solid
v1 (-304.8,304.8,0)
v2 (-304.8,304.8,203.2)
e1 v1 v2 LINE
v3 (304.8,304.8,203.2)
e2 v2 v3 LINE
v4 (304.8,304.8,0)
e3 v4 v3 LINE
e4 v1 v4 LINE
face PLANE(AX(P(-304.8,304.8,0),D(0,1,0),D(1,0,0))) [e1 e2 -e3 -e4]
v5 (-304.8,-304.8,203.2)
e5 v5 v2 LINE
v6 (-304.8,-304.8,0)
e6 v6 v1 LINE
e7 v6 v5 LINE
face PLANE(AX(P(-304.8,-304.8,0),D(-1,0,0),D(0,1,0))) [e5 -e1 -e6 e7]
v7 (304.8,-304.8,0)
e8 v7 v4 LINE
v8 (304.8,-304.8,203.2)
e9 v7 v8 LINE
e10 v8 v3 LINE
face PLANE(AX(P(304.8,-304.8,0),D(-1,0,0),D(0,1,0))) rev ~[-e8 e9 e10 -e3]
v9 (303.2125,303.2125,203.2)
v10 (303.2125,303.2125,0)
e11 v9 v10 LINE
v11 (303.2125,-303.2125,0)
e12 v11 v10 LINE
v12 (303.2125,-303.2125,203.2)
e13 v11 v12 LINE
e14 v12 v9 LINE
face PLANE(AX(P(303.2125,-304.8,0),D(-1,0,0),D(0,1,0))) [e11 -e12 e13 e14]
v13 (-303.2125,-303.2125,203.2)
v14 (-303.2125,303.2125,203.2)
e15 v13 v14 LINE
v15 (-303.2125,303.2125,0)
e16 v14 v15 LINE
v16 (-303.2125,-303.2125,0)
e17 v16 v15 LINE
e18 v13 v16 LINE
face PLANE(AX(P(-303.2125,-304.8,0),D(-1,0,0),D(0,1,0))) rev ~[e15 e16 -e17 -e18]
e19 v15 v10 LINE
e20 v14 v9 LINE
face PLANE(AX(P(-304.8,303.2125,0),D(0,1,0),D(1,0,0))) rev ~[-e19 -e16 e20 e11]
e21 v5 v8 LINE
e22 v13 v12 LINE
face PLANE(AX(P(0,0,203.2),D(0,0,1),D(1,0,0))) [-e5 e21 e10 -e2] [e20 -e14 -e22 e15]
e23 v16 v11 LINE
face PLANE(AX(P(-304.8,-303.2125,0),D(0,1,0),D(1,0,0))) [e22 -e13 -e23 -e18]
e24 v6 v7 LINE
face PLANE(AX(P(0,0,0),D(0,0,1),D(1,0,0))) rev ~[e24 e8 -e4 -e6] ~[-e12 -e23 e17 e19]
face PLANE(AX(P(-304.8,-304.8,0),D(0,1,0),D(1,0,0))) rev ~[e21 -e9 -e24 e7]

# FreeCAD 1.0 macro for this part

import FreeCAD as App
import Part
import Sketcher

V = App.Vector
Q = App.Units.Quantity


def faces_at(feature, points):
    """Names of the faces that lie closest to the given points."""
    faces = feature.Shape.Faces
    near = lambda p: min(range(len(faces)), key=lambda i: faces[i].distToShape(Part.Vertex(*p))[0])
    return sorted({f"Face{near(p) + 1}" for p in points})

doc = App.newDocument("Part")
params = doc.addObject("Spreadsheet::Sheet", "Params")
for row, (alias, value) in enumerate([
    ("sketch1_width", "24 in"),
    ("pad1_length", "8 in"),
    ("thickness_wall", "0.0625 in"),
], start=1):
    params.set(f"A{row}", alias)
    params.set(f"B{row}", "=" + value)
    params.setAlias(f"B{row}", alias)

body = doc.addObject("PartDesign::Body", "Body")

# Sketch on XY plane
sketch1 = body.newObject("Sketcher::SketchObject", "Sketch")
sketch1.AttachmentSupport = (doc.getObject("XY_Plane"), [""])
sketch1.MapMode = "FlatFace"
sketch1.addGeometry(Part.LineSegment(V(-304.8, 304.8, 0), V(-304.8, -304.8, 0)), False)
sketch1.addGeometry(Part.LineSegment(V(-304.8, -304.8, 0), V(304.8, -304.8, 0)), False)
sketch1.addGeometry(Part.LineSegment(V(304.8, -304.8, 0), V(304.8, 304.8, 0)), False)
sketch1.addGeometry(Part.LineSegment(V(304.8, 304.8, 0), V(-304.8, 304.8, 0)), False)
sketch1.addConstraint(Sketcher.Constraint("Coincident", 0, 2, 1, 1))
sketch1.addConstraint(Sketcher.Constraint("Coincident", 1, 2, 2, 1))
sketch1.addConstraint(Sketcher.Constraint("Coincident", 2, 2, 3, 1))
sketch1.addConstraint(Sketcher.Constraint("Coincident", 3, 2, 0, 1))
sketch1.addConstraint(Sketcher.Constraint("Vertical", 0))
sketch1.addConstraint(Sketcher.Constraint("Horizontal", 1))
sketch1.addConstraint(Sketcher.Constraint("Vertical", 2))
sketch1.addConstraint(Sketcher.Constraint("Horizontal", 3))
sketch1.addConstraint(Sketcher.Constraint("Symmetric", 0, 2, 2, 2, -1, 1))
sketch1.addConstraint(Sketcher.Constraint("Equal", 3, 0))
sketch1.addConstraint(Sketcher.Constraint("DistanceX", 1, 1, 1, 2, Q("24 in")))
sketch1.setExpression("Constraints[10]", "Params.sketch1_width")
pad1 = body.newObject("PartDesign::Pad", "Pad")
pad1.Profile = sketch1
pad1.setExpression("Length", "Params.pad1_length")
doc.recompute()

thickness = body.newObject("PartDesign::Thickness", "Thickness")
thickness.Base = (pad1, faces_at(pad1, [(0, 0, 203.2), (0, 0, 0)]))
thickness.setExpression("Value", "Params.thickness_wall")
thickness.Reversed = True
thickness.Join = "Arc"

doc.recompute()
